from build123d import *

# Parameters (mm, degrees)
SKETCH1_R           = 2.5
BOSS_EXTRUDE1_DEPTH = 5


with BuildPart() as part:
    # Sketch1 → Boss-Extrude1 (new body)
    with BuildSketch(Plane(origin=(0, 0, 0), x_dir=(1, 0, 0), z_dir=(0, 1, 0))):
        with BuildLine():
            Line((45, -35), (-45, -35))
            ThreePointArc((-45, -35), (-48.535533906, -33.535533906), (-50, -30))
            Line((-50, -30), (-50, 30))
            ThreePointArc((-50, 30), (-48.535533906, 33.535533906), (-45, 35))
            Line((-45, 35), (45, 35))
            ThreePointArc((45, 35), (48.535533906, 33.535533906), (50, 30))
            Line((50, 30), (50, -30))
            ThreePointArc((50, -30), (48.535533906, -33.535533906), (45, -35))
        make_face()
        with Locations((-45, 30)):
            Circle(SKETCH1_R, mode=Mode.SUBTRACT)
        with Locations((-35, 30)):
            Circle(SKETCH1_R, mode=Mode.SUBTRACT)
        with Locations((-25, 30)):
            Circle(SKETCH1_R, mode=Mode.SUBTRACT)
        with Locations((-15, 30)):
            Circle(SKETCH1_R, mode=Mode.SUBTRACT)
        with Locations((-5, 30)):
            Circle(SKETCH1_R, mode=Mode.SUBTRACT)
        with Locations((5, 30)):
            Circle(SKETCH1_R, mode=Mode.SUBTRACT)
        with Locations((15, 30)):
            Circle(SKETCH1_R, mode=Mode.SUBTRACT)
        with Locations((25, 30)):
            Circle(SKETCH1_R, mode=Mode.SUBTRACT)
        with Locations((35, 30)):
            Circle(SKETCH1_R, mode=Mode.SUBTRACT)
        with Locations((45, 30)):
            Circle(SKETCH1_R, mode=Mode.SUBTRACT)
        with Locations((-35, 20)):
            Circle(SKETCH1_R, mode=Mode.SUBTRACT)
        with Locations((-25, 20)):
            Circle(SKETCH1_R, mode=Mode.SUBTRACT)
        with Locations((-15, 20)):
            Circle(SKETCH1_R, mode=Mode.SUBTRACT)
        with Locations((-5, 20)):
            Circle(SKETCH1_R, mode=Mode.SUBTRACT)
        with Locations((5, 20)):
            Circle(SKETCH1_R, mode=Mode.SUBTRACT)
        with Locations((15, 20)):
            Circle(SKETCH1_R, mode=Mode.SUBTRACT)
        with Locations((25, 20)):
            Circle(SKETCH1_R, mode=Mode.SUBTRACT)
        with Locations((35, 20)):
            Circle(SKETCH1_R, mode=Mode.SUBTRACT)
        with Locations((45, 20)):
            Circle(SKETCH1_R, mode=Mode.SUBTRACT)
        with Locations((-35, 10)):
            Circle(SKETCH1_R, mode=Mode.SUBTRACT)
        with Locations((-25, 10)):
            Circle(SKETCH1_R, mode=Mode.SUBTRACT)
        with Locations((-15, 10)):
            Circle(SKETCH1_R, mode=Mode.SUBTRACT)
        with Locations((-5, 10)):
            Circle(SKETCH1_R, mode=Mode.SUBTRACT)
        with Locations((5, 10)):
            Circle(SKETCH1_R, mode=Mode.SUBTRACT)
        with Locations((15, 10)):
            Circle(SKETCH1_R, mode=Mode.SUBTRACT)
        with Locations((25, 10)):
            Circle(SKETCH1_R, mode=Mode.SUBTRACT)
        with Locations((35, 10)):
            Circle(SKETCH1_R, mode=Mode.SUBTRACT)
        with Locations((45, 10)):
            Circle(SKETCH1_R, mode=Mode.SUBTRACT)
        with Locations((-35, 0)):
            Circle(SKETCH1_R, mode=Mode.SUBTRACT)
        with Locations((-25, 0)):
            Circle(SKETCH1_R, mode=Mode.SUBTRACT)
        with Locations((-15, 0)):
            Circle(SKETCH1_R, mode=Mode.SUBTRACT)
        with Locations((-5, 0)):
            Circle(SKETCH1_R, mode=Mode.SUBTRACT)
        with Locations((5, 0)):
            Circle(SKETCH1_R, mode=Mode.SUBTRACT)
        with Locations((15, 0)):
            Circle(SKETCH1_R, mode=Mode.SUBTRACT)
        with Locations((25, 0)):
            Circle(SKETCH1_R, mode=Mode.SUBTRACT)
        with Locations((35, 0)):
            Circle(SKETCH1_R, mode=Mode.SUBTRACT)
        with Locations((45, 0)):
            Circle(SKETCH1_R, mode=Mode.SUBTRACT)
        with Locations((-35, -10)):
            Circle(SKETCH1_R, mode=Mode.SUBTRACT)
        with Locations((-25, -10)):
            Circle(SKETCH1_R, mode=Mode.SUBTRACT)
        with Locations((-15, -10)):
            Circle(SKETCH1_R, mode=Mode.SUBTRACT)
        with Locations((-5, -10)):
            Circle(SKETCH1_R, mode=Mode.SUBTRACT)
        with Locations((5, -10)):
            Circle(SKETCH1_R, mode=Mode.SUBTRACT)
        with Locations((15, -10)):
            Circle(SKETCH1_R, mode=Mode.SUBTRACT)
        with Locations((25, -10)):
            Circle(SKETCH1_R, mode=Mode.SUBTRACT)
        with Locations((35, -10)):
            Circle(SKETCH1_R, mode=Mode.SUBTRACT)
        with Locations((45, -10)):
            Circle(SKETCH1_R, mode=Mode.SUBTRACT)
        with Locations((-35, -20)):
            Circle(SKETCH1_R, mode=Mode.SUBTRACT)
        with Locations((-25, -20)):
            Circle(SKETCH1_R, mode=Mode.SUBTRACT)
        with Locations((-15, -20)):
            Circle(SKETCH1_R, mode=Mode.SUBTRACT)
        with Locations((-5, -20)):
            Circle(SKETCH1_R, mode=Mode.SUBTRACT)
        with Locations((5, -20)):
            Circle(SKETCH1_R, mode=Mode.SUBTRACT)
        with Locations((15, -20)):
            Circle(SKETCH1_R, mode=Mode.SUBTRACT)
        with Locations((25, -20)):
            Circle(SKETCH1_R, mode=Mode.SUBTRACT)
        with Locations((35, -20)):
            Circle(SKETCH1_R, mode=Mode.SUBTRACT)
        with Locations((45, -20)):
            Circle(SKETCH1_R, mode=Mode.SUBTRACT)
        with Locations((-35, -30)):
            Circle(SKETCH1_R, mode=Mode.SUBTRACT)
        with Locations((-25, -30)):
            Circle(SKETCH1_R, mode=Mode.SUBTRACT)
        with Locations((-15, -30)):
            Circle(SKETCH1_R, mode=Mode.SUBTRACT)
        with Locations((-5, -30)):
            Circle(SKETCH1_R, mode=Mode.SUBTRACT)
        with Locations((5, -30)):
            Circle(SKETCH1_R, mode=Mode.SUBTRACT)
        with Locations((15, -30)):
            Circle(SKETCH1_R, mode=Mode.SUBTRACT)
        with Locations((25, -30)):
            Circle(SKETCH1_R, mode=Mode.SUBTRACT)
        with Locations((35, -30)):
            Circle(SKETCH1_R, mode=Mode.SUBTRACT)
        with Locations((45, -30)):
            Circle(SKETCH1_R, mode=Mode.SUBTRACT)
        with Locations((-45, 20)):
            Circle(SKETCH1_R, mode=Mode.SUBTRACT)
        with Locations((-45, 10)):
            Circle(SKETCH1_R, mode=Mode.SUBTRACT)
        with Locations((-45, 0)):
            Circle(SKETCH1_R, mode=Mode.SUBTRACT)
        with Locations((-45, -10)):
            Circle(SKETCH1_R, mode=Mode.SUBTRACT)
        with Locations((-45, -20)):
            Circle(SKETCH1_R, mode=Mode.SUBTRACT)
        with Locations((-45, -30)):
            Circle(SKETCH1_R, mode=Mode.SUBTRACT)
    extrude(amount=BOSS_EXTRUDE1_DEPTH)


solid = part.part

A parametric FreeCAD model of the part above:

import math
import FreeCAD as App
import Part
import Sketcher
from FreeCAD import Vector

doc = App.newDocument("Part")
params = doc.addObject("Spreadsheet::Sheet", "Params")
for row, (alias, value) in enumerate([
    ("sketch1_diameter", "5 mm"),
    ("sketch1_radius", "5 mm"),
    ("sketch1_width", "90 mm"),
    ("sketch1_height", "60 mm"),
    ("pad1_length", "5 mm"),
], start=1):
    params.set(f"A{row}", alias)
    params.set(f"B{row}", "=" + value)
    params.setAlias(f"B{row}", alias)

body = doc.addObject("PartDesign::Body", "Body")

# Sketch on XZ plane
sketch1 = doc.addObject("Sketcher::SketchObject", "Sketch")
body.addObject(sketch1)
sketch1.AttachmentSupport = (doc.XZ_Plane, [""])
sketch1.MapMode = "FlatFace"
sketch1.addGeometry([
    Part.LineSegment(Vector(-45, 35, 0), Vector(45, 35, 0)),  # 0
    Part.ArcOfCircle(Part.Circle(Vector(45, 30, 0), Vector(0, 0, 1), 5), math.radians(0), math.radians(90)),  # 1
    Part.LineSegment(Vector(50, 30, 0), Vector(50, -30, 0)),  # 2
    Part.ArcOfCircle(Part.Circle(Vector(45, -30, 0), Vector(0, 0, 1), 5), math.radians(-90), math.radians(0)),  # 3
    Part.LineSegment(Vector(45, -35, 0), Vector(-45, -35, 0)),  # 4
    Part.ArcOfCircle(Part.Circle(Vector(-45, -30, 0), Vector(0, 0, 1), 5), math.radians(180), math.radians(270)),  # 5
    Part.LineSegment(Vector(-50, -30, 0), Vector(-50, 30, 0)),  # 6
    Part.ArcOfCircle(Part.Circle(Vector(-45, 30, 0), Vector(0, 0, 1), 5), math.radians(90), math.radians(180)),  # 7
    Part.Circle(Vector(45, 30, 0), Vector(0, 0, 1), 2.5),  # 8
    Part.Circle(Vector(35, 30, 0), Vector(0, 0, 1), 2.5),  # 9
    Part.Circle(Vector(25, 30, 0), Vector(0, 0, 1), 2.5),  # 10
    Part.Circle(Vector(45, 20, 0), Vector(0, 0, 1), 2.5),  # 11
    Part.Circle(Vector(35, 20, 0), Vector(0, 0, 1), 2.5),  # 12
    Part.Circle(Vector(25, 20, 0), Vector(0, 0, 1), 2.5),  # 13
    Part.Circle(Vector(15, 30, 0), Vector(0, 0, 1), 2.5),  # 14
    Part.Circle(Vector(5, 30, 0), Vector(0, 0, 1), 2.5),  # 15
    Part.Circle(Vector(15, 20, 0), Vector(0, 0, 1), 2.5),  # 16
    Part.Circle(Vector(5, 20, 0), Vector(0, 0, 1), 2.5),  # 17
    Part.Circle(Vector(45, 10, 0), Vector(0, 0, 1), 2.5),  # 18
    Part.Circle(Vector(35, 10, 0), Vector(0, 0, 1), 2.5),  # 19
    Part.Circle(Vector(25, 10, 0), Vector(0, 0, 1), 2.5),  # 20
    Part.Circle(Vector(15, 10, 0), Vector(0, 0, 1), 2.5),  # 21
    Part.Circle(Vector(5, 10, 0), Vector(0, 0, 1), 2.5),  # 22
    Part.Circle(Vector(-5, 30, 0), Vector(0, 0, 1), 2.5),  # 23
    Part.Circle(Vector(-15, 30, 0), Vector(0, 0, 1), 2.5),  # 24
    Part.Circle(Vector(-5, 20, 0), Vector(0, 0, 1), 2.5),  # 25
    Part.Circle(Vector(-15, 20, 0), Vector(0, 0, 1), 2.5),  # 26
    Part.Circle(Vector(-25, 30, 0), Vector(0, 0, 1), 2.5),  # 27
    Part.Circle(Vector(-35, 30, 0), Vector(0, 0, 1), 2.5),  # 28
    Part.Circle(Vector(-45, 30, 0), Vector(0, 0, 1), 2.5),  # 29
    Part.Circle(Vector(-25, 20, 0), Vector(0, 0, 1), 2.5),  # 30
    Part.Circle(Vector(-35, 20, 0), Vector(0, 0, 1), 2.5),  # 31
    Part.Circle(Vector(-45, 20, 0), Vector(0, 0, 1), 2.5),  # 32
    Part.Circle(Vector(-5, 10, 0), Vector(0, 0, 1), 2.5),  # 33
    Part.Circle(Vector(-15, 10, 0), Vector(0, 0, 1), 2.5),  # 34
    Part.Circle(Vector(-25, 10, 0), Vector(0, 0, 1), 2.5),  # 35
    Part.Circle(Vector(-35, 10, 0), Vector(0, 0, 1), 2.5),  # 36
    Part.Circle(Vector(-45, 10, 0), Vector(0, 0, 1), 2.5),  # 37
    Part.Circle(Vector(45, 0, 0), Vector(0, 0, 1), 2.5),  # 38
    Part.Circle(Vector(35, 0, 0), Vector(0, 0, 1), 2.5),  # 39
    Part.Circle(Vector(25, 0, 0), Vector(0, 0, 1), 2.5),  # 40
    Part.Circle(Vector(45, -10, 0), Vector(0, 0, 1), 2.5),  # 41
    Part.Circle(Vector(35, -10, 0), Vector(0, 0, 1), 2.5),  # 42
    Part.Circle(Vector(25, -10, 0), Vector(0, 0, 1), 2.5),  # 43
    Part.Circle(Vector(15, 0, 0), Vector(0, 0, 1), 2.5),  # 44
    Part.Circle(Vector(5, 0, 0), Vector(0, 0, 1), 2.5),  # 45
    Part.Circle(Vector(15, -10, 0), Vector(0, 0, 1), 2.5),  # 46
    Part.Circle(Vector(5, -10, 0), Vector(0, 0, 1), 2.5),  # 47
    Part.Circle(Vector(45, -20, 0), Vector(0, 0, 1), 2.5),  # 48
    Part.Circle(Vector(35, -20, 0), Vector(0, 0, 1), 2.5),  # 49
    Part.Circle(Vector(25, -20, 0), Vector(0, 0, 1), 2.5),  # 50
    Part.Circle(Vector(45, -30, 0), Vector(0, 0, 1), 2.5),  # 51
    Part.Circle(Vector(35, -30, 0), Vector(0, 0, 1), 2.5),  # 52
    Part.Circle(Vector(25, -30, 0), Vector(0, 0, 1), 2.5),  # 53
    Part.Circle(Vector(15, -20, 0), Vector(0, 0, 1), 2.5),  # 54
    Part.Circle(Vector(5, -20, 0), Vector(0, 0, 1), 2.5),  # 55
    Part.Circle(Vector(15, -30, 0), Vector(0, 0, 1), 2.5),  # 56
    Part.Circle(Vector(5, -30, 0), Vector(0, 0, 1), 2.5),  # 57
    Part.Circle(Vector(-5, 0, 0), Vector(0, 0, 1), 2.5),  # 58
    Part.Circle(Vector(-15, 0, 0), Vector(0, 0, 1), 2.5),  # 59
    Part.Circle(Vector(-5, -10, 0), Vector(0, 0, 1), 2.5),  # 60
    Part.Circle(Vector(-15, -10, 0), Vector(0, 0, 1), 2.5),  # 61
    Part.Circle(Vector(-25, 0, 0), Vector(0, 0, 1), 2.5),  # 62
    Part.Circle(Vector(-35, 0, 0), Vector(0, 0, 1), 2.5),  # 63
    Part.Circle(Vector(-45, 0, 0), Vector(0, 0, 1), 2.5),  # 64
    Part.Circle(Vector(-25, -10, 0), Vector(0, 0, 1), 2.5),  # 65
    Part.Circle(Vector(-35, -10, 0), Vector(0, 0, 1), 2.5),  # 66
    Part.Circle(Vector(-45, -10, 0), Vector(0, 0, 1), 2.5),  # 67
    Part.Circle(Vector(-5, -20, 0), Vector(0, 0, 1), 2.5),  # 68
    Part.Circle(Vector(-15, -20, 0), Vector(0, 0, 1), 2.5),  # 69
    Part.Circle(Vector(-5, -30, 0), Vector(0, 0, 1), 2.5),  # 70
    Part.Circle(Vector(-15, -30, 0), Vector(0, 0, 1), 2.5),  # 71
    Part.Circle(Vector(-25, -20, 0), Vector(0, 0, 1), 2.5),  # 72
    Part.Circle(Vector(-35, -20, 0), Vector(0, 0, 1), 2.5),  # 73
    Part.Circle(Vector(-45, -20, 0), Vector(0, 0, 1), 2.5),  # 74
    Part.Circle(Vector(-25, -30, 0), Vector(0, 0, 1), 2.5),  # 75
    Part.Circle(Vector(-35, -30, 0), Vector(0, 0, 1), 2.5),  # 76
    Part.Circle(Vector(-45, -30, 0), Vector(0, 0, 1), 2.5),  # 77
], False)
sketch1.addConstraint([
    Sketcher.Constraint("Tangent", 0, 2, 1, 2),
    Sketcher.Constraint("Tangent", 1, 1, 2, 1),
    Sketcher.Constraint("Tangent", 2, 2, 3, 2),
    Sketcher.Constraint("Tangent", 3, 1, 4, 1),
    Sketcher.Constraint("Tangent", 4, 2, 5, 2),
    Sketcher.Constraint("Tangent", 5, 1, 6, 1),
    Sketcher.Constraint("Tangent", 6, 2, 7, 2),
    Sketcher.Constraint("Tangent", 7, 1, 0, 1),
    Sketcher.Constraint("Horizontal", 0),
    Sketcher.Constraint("Vertical", 2),
    Sketcher.Constraint("Horizontal", 4),
    Sketcher.Constraint("Vertical", 6),
    Sketcher.Constraint("Coincident", 8, 3, 1, 3),
    Sketcher.Constraint("Coincident", 29, 3, 7, 3),
    Sketcher.Constraint("Coincident", 51, 3, 3, 3),
    Sketcher.Constraint("Coincident", 77, 3, 5, 3),
    Sketcher.Constraint("Equal", 1, 3),
    Sketcher.Constraint("Equal", 3, 5),
    Sketcher.Constraint("Equal", 5, 7),
    Sketcher.Constraint("Equal", 8, 9),
    Sketcher.Constraint("Equal", 9, 10),
    Sketcher.Constraint("Equal", 10, 11),
    Sketcher.Constraint("Equal", 11, 12),
    Sketcher.Constraint("Equal", 12, 13),
    Sketcher.Constraint("Equal", 13, 14),
    Sketcher.Constraint("Equal", 14, 15),
    Sketcher.Constraint("Equal", 15, 16),
    Sketcher.Constraint("Equal", 16, 17),
    Sketcher.Constraint("Equal", 17, 18),
    Sketcher.Constraint("Equal", 18, 19),
    Sketcher.Constraint("Equal", 19, 20),
    Sketcher.Constraint("Equal", 20, 21),
    Sketcher.Constraint("Equal", 21, 22),
    Sketcher.Constraint("Equal", 22, 23),
    Sketcher.Constraint("Equal", 23, 24),
    Sketcher.Constraint("Equal", 24, 25),
    Sketcher.Constraint("Equal", 25, 26),
    Sketcher.Constraint("Equal", 26, 27),
    Sketcher.Constraint("Equal", 27, 28),
    Sketcher.Constraint("Equal", 28, 29),
    Sketcher.Constraint("Equal", 29, 30),
    Sketcher.Constraint("Equal", 30, 31),
    Sketcher.Constraint("Equal", 31, 32),
    Sketcher.Constraint("Equal", 32, 33),
    Sketcher.Constraint("Equal", 33, 34),
    Sketcher.Constraint("Equal", 34, 35),
    Sketcher.Constraint("Equal", 35, 36),
    Sketcher.Constraint("Equal", 36, 37),
    Sketcher.Constraint("Equal", 37, 38),
    Sketcher.Constraint("Equal", 38, 39),
    Sketcher.Constraint("Equal", 39, 40),
    Sketcher.Constraint("Equal", 40, 41),
    Sketcher.Constraint("Equal", 41, 42),
    Sketcher.Constraint("Equal", 42, 43),
    Sketcher.Constraint("Equal", 43, 44),
    Sketcher.Constraint("Equal", 44, 45),
    Sketcher.Constraint("Equal", 45, 46),
    Sketcher.Constraint("Equal", 46, 47),
    Sketcher.Constraint("Equal", 47, 48),
    Sketcher.Constraint("Equal", 48, 49),
    Sketcher.Constraint("Equal", 49, 50),
    Sketcher.Constraint("Equal", 50, 51),
    Sketcher.Constraint("Equal", 51, 52),
    Sketcher.Constraint("Equal", 52, 53),
    Sketcher.Constraint("Equal", 53, 54),
    Sketcher.Constraint("Equal", 54, 55),
    Sketcher.Constraint("Equal", 55, 56),
    Sketcher.Constraint("Equal", 56, 57),
    Sketcher.Constraint("Equal", 57, 58),
    Sketcher.Constraint("Equal", 58, 59),
    Sketcher.Constraint("Equal", 59, 60),
    Sketcher.Constraint("Equal", 60, 61),
    Sketcher.Constraint("Equal", 61, 62),
    Sketcher.Constraint("Equal", 62, 63),
    Sketcher.Constraint("Equal", 63, 64),
    Sketcher.Constraint("Equal", 64, 65),
    Sketcher.Constraint("Equal", 65, 66),
    Sketcher.Constraint("Equal", 66, 67),
    Sketcher.Constraint("Equal", 67, 68),
    Sketcher.Constraint("Equal", 68, 69),
    Sketcher.Constraint("Equal", 69, 70),
    Sketcher.Constraint("Equal", 70, 71),
    Sketcher.Constraint("Equal", 71, 72),
    Sketcher.Constraint("Equal", 72, 73),
    Sketcher.Constraint("Equal", 73, 74),
    Sketcher.Constraint("Equal", 74, 75),
    Sketcher.Constraint("Equal", 75, 76),
    Sketcher.Constraint("Equal", 76, 77),
    Sketcher.Constraint("Symmetric", 1, 3, 5, 3, -1, 1),
    Sketcher.Constraint("Symmetric", 37, 3, 41, 3, -1, 1),
    Sketcher.Constraint("Symmetric", 36, 3, 42, 3, -1, 1),
    Sketcher.Constraint("Symmetric", 35, 3, 43, 3, -1, 1),
    Sketcher.Constraint("Symmetric", 34, 3, 46, 3, -1, 1),
    Sketcher.Constraint("Symmetric", 33, 3, 47, 3, -1, 1),
    Sketcher.Constraint("Symmetric", 32, 3, 48, 3, -1, 1),
    Sketcher.Constraint("Symmetric", 31, 3, 49, 3, -1, 1),
    Sketcher.Constraint("Symmetric", 30, 3, 50, 3, -1, 1),
    Sketcher.Constraint("Symmetric", 28, 3, 52, 3, -1, 1),
    Sketcher.Constraint("Symmetric", 27, 3, 53, 3, -1, 1),
    Sketcher.Constraint("Symmetric", 26, 3, 54, 3, -1, 1),
    Sketcher.Constraint("Symmetric", 25, 3, 55, 3, -1, 1),
    Sketcher.Constraint("Symmetric", 24, 3, 56, 3, -1, 1),
    Sketcher.Constraint("Symmetric", 23, 3, 57, 3, -1, 1),
    Sketcher.Constraint("Symmetric", 45, 3, 58, 3, -1, 1),
    Sketcher.Constraint("Symmetric", 44, 3, 59, 3, -1, 1),
    Sketcher.Constraint("Symmetric", 22, 3, 60, 3, -1, 1),
    Sketcher.Constraint("Symmetric", 21, 3, 61, 3, -1, 1),
    Sketcher.Constraint("Symmetric", 40, 3, 62, 3, -1, 1),
    Sketcher.Constraint("Symmetric", 39, 3, 63, 3, -1, 1),
    Sketcher.Constraint("Symmetric", 38, 3, 64, 3, -1, 1),
    Sketcher.Constraint("Symmetric", 20, 3, 65, 3, -1, 1),
    Sketcher.Constraint("Symmetric", 19, 3, 66, 3, -1, 1),
    Sketcher.Constraint("Symmetric", 18, 3, 67, 3, -1, 1),
    Sketcher.Constraint("Symmetric", 17, 3, 68, 3, -1, 1),
    Sketcher.Constraint("Symmetric", 16, 3, 69, 3, -1, 1),
    Sketcher.Constraint("Symmetric", 15, 3, 70, 3, -1, 1),
    Sketcher.Constraint("Symmetric", 14, 3, 71, 3, -1, 1),
    Sketcher.Constraint("Symmetric", 13, 3, 72, 3, -1, 1),
    Sketcher.Constraint("Symmetric", 12, 3, 73, 3, -1, 1),
    Sketcher.Constraint("Symmetric", 11, 3, 74, 3, -1, 1),
    Sketcher.Constraint("Symmetric", 10, 3, 75, 3, -1, 1),
    Sketcher.Constraint("Symmetric", 9, 3, 76, 3, -1, 1),
    Sketcher.Constraint("Symmetric", 15, 3, 23, 3, -2),
    Sketcher.Constraint("Symmetric", 14, 3, 24, 3, -2),
    Sketcher.Constraint("Symmetric", 17, 3, 25, 3, -2),
    Sketcher.Constraint("Symmetric", 16, 3, 26, 3, -2),
    Sketcher.Constraint("Symmetric", 10, 3, 27, 3, -2),
    Sketcher.Constraint("Symmetric", 9, 3, 28, 3, -2),
    Sketcher.Constraint("Symmetric", 13, 3, 30, 3, -2),
    Sketcher.Constraint("Symmetric", 12, 3, 31, 3, -2),
    Sketcher.Constraint("Symmetric", 11, 3, 32, 3, -2),
    Sketcher.Constraint("Symmetric", 22, 3, 33, 3, -2),
    Sketcher.Constraint("Symmetric", 21, 3, 34, 3, -2),
    Sketcher.Constraint("Symmetric", 20, 3, 35, 3, -2),
    Sketcher.Constraint("Symmetric", 19, 3, 36, 3, -2),
    Sketcher.Constraint("Symmetric", 18, 3, 37, 3, -2),
    Sketcher.Constraint("PointOnObject", 38, 3, -1),
    Sketcher.Constraint("PointOnObject", 39, 3, -1),
    Sketcher.Constraint("PointOnObject", 40, 3, -1),
    Sketcher.Constraint("PointOnObject", 44, 3, -1),
    Sketcher.Constraint("PointOnObject", 45, 3, -1),
    Sketcher.Constraint("Horizontal", 8, 3, 9, 3),
    Sketcher.Constraint("Horizontal", 9, 3, 10, 3),
    Sketcher.Constraint("Horizontal", 11, 3, 12, 3),
    Sketcher.Constraint("Horizontal", 12, 3, 13, 3),
    Sketcher.Constraint("Horizontal", 10, 3, 14, 3),
    Sketcher.Constraint("Horizontal", 14, 3, 15, 3),
    Sketcher.Constraint("Horizontal", 13, 3, 16, 3),
    Sketcher.Constraint("Horizontal", 16, 3, 17, 3),
    Sketcher.Constraint("Horizontal", 18, 3, 19, 3),
    Sketcher.Constraint("Horizontal", 19, 3, 20, 3),
    Sketcher.Constraint("Horizontal", 20, 3, 21, 3),
    Sketcher.Constraint("Horizontal", 21, 3, 22, 3),
    Sketcher.Constraint("Vertical", 8, 3, 11, 3),
    Sketcher.Constraint("Vertical", 9, 3, 12, 3),
    Sketcher.Constraint("Vertical", 10, 3, 13, 3),
    Sketcher.Constraint("Vertical", 14, 3, 16, 3),
    Sketcher.Constraint("Vertical", 15, 3, 17, 3),
    Sketcher.Constraint("Vertical", 11, 3, 18, 3),
    Sketcher.Constraint("Vertical", 12, 3, 19, 3),
    Sketcher.Constraint("Vertical", 13, 3, 20, 3),
    Sketcher.Constraint("Vertical", 16, 3, 21, 3),
    Sketcher.Constraint("Vertical", 17, 3, 22, 3),
    Sketcher.Constraint("Vertical", 18, 3, 38, 3),
    Sketcher.Constraint("Vertical", 19, 3, 39, 3),
    Sketcher.Constraint("Vertical", 20, 3, 40, 3),
    Sketcher.Constraint("Vertical", 21, 3, 44, 3),
    Sketcher.Constraint("Vertical", 22, 3, 45, 3),
    Sketcher.Constraint("Diameter", 8, 5.0),
    Sketcher.Constraint("Radius", 1, 5.0),
    Sketcher.Constraint("DistanceX", 0, 1, 0, 2, 90.0),
    Sketcher.Constraint("DistanceY", 2, 2, 2, 1, 60.0),
    Sketcher.Constraint("DistanceX", -1, 1, 9, 3, 35.0),
    Sketcher.Constraint("DistanceX", -1, 1, 10, 3, 25.0),
    Sketcher.Constraint("DistanceY", -1, 1, 11, 3, 20.0),
    Sketcher.Constraint("DistanceX", -1, 1, 14, 3, 15.0),
    Sketcher.Constraint("DistanceX", -1, 1, 15, 3, 5.0),
    Sketcher.Constraint("DistanceY", -1, 1, 18, 3, 10.0),
])
sketch1.setExpression("Constraints[168]", "Params.sketch1_diameter")
sketch1.setExpression("Constraints[169]", "Params.sketch1_radius")
sketch1.setExpression("Constraints[170]", "Params.sketch1_width")
sketch1.setExpression("Constraints[171]", "Params.sketch1_height")
pad1 = doc.addObject("PartDesign::Pad", "Pad")
body.addObject(pad1)
pad1.Profile = sketch1
pad1.setExpression("Length", "Params.pad1_length")
pad1.Reversed = True

doc.recompute()
